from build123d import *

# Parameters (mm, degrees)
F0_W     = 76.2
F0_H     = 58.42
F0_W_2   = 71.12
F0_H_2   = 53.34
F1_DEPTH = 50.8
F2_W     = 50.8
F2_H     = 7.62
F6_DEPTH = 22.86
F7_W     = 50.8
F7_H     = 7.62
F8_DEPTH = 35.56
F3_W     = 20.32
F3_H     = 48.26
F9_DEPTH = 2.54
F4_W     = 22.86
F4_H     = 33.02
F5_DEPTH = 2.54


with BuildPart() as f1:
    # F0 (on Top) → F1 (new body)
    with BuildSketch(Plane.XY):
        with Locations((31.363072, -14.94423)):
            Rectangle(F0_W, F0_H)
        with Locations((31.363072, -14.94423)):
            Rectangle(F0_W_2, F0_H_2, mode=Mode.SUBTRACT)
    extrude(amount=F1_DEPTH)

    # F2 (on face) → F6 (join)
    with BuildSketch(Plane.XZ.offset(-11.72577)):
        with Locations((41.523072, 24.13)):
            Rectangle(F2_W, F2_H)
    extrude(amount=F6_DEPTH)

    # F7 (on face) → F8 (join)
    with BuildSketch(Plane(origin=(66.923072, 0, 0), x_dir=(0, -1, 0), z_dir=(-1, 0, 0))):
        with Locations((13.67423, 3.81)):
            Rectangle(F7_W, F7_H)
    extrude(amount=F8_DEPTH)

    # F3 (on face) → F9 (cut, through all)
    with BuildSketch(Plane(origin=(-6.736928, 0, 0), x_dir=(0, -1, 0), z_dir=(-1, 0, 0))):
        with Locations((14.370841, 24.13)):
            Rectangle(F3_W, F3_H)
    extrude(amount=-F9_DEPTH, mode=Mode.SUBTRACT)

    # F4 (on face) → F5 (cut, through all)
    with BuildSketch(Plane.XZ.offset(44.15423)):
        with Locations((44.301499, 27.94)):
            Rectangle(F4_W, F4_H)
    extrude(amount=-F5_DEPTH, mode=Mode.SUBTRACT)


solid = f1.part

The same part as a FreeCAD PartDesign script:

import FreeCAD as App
import Part
import Sketcher
from FreeCAD import Vector
Q = App.Units.Quantity


def add_polygon(sketch, points):
    """Adds a closed chain of lines whose ends are joined by coincident constraints."""
    first, n = sketch.GeometryCount, len(points)
    for a, b in zip(points, points[1:] + points[:1]):
        sketch.addGeometry(Part.LineSegment(App.Vector(*a, 0), App.Vector(*b, 0)), False)
    for i in range(n):
        sketch.addConstraint(Sketcher.Constraint("Coincident", first + i, 2, first + (i + 1) % n, 1))

doc = App.newDocument("Part")
body = doc.addObject("PartDesign::Body", "Body")

# Sketch on XY plane
sketch1 = body.newObject("Sketcher::SketchObject", "Sketch")
sketch1.AttachmentSupport = (doc.getObject("XY_Plane"), [""])
sketch1.MapMode = "FlatFace"
add_polygon(sketch1, [(-7, 14), (-7, -44), (69, -44), (69, 14)])  # lines 0-3
add_polygon(sketch1, [(67, -42), (-4, -42), (-4, 12), (67, 12)])  # lines 4-7
sketch1.addConstraint(Sketcher.Constraint("Vertical", 0))
sketch1.addConstraint(Sketcher.Constraint("Horizontal", 1))
sketch1.addConstraint(Sketcher.Constraint("Vertical", 2))
sketch1.addConstraint(Sketcher.Constraint("Horizontal", 3))
sketch1.addConstraint(Sketcher.Constraint("Horizontal", 4))
sketch1.addConstraint(Sketcher.Constraint("Vertical", 5))
sketch1.addConstraint(Sketcher.Constraint("Horizontal", 6))
sketch1.addConstraint(Sketcher.Constraint("Vertical", 7))
sketch1.addConstraint(Sketcher.Constraint("DistanceX", 1, 1, 1, 2, Q("3 in")))
sketch1.addConstraint(Sketcher.Constraint("DistanceX", 4, 2, 4, 1, Q("2.8 in")))
sketch1.addConstraint(Sketcher.Constraint("DistanceY", 0, 2, 0, 1, Q("2.3 in")))
sketch1.addConstraint(Sketcher.Constraint("DistanceY", 5, 1, 5, 2, Q("2.1 in")))
sketch1.addConstraint(Sketcher.Constraint("DistanceX", 0, 2, 4, 2, Q("0.1 in")))
sketch1.addConstraint(Sketcher.Constraint("DistanceY", 0, 2, 4, 2, Q("0.1 in")))
sketch1.addConstraint(Sketcher.Constraint("DistanceY", 0, 2, -1, 1, 44.15423))
sketch1.addConstraint(Sketcher.Constraint("DistanceX", -1, 1, 1, 2, 69.463072))
pad1 = body.newObject("PartDesign::Pad", "Pad")
pad1.Profile = sketch1
pad1.Length = Q("2 in")

# Sketch on XZ plane
sketch2 = body.newObject("Sketcher::SketchObject", "Sketch001")
sketch2.AttachmentSupport = (doc.getObject("XZ_Plane"), [""])
sketch2.MapMode = "FlatFace"
sketch2.AttachmentOffset = App.Placement(Vector(0, 0, -11.72577), App.Rotation())
add_polygon(sketch2, [(16, 28), (16, 20), (67, 20), (67, 28)])  # lines 0-3
sketch2.addConstraint(Sketcher.Constraint("Vertical", 0))
sketch2.addConstraint(Sketcher.Constraint("Horizontal", 1))
sketch2.addConstraint(Sketcher.Constraint("Vertical", 2))
sketch2.addConstraint(Sketcher.Constraint("Horizontal", 3))
sketch2.addConstraint(Sketcher.Constraint("DistanceX", 1, 1, 1, 2, Q("2 in")))
sketch2.addConstraint(Sketcher.Constraint("DistanceY", 0, 2, 0, 1, Q("0.3 in")))
sketch2.addConstraint(Sketcher.Constraint("DistanceY", -1, 1, 0, 2, Q("0.8 in")))
sketch2.addConstraint(Sketcher.Constraint("DistanceX", -1, 1, 0, 2, 16.123072))
pad2 = body.newObject("PartDesign::Pad", "Pad001")
pad2.Profile = sketch2
pad2.Length = Q("0.9 in")

# Sketch on YZ plane
sketch3 = body.newObject("Sketcher::SketchObject", "Sketch002")
sketch3.AttachmentSupport = (doc.getObject("YZ_Plane"), [""])
sketch3.MapMode = "FlatFace"
sketch3.AttachmentOffset = App.Placement(Vector(0, 0, 66.923072), App.Rotation())
add_polygon(sketch3, [(12, 8), (12, 0), (-39, 0), (-39, 8)])  # lines 0-3
sketch3.addConstraint(Sketcher.Constraint("Vertical", 0))
sketch3.addConstraint(Sketcher.Constraint("Horizontal", 1))
sketch3.addConstraint(Sketcher.Constraint("Vertical", 2))
sketch3.addConstraint(Sketcher.Constraint("Horizontal", 3))
sketch3.addConstraint(Sketcher.Constraint("PointOnObject", 0, 2, -1))
sketch3.addConstraint(Sketcher.Constraint("DistanceX", 1, 2, 1, 1, Q("2 in")))
sketch3.addConstraint(Sketcher.Constraint("DistanceY", 0, 2, 0, 1, Q("0.3 in")))
sketch3.addConstraint(Sketcher.Constraint("DistanceX", -1, 1, 0, 2, 11.72577))
pad3 = body.newObject("PartDesign::Pad", "Pad002")
pad3.Profile = sketch3
pad3.Length = Q("1.4 in")
pad3.Reversed = True

# Sketch on YZ plane
sketch4 = body.newObject("Sketcher::SketchObject", "Sketch003")
sketch4.AttachmentSupport = (doc.getObject("YZ_Plane"), [""])
sketch4.MapMode = "FlatFace"
sketch4.AttachmentOffset = App.Placement(Vector(0, 0, -6.736928), App.Rotation())
add_polygon(sketch4, [(-4, 48), (-4, 0), (-25, 0), (-25, 48)])  # lines 0-3
sketch4.addConstraint(Sketcher.Constraint("Vertical", 0))
sketch4.addConstraint(Sketcher.Constraint("Horizontal", 1))
sketch4.addConstraint(Sketcher.Constraint("Vertical", 2))
sketch4.addConstraint(Sketcher.Constraint("Horizontal", 3))
sketch4.addConstraint(Sketcher.Constraint("PointOnObject", 0, 2, -1))
sketch4.addConstraint(Sketcher.Constraint("DistanceX", 1, 2, 1, 1, Q("0.8 in")))
sketch4.addConstraint(Sketcher.Constraint("DistanceY", 0, 2, 0, 1, Q("1.9 in")))
sketch4.addConstraint(Sketcher.Constraint("DistanceX", 0, 2, -1, 1, 4.210841))
pocket1 = body.newObject("PartDesign::Pocket", "Pocket")
pocket1.Profile = sketch4
pocket1.Length = Q("0.1 in")
pocket1.Reversed = True

# Sketch on XZ plane
sketch5 = body.newObject("Sketcher::SketchObject", "Sketch004")
sketch5.AttachmentSupport = (doc.getObject("XZ_Plane"), [""])
sketch5.MapMode = "FlatFace"
sketch5.AttachmentOffset = App.Placement(Vector(0, 0, 44.15423), App.Rotation())
add_polygon(sketch5, [(33, 44), (33, 11), (56, 11), (56, 44)])  # lines 0-3
sketch5.addConstraint(Sketcher.Constraint("Vertical", 0))
sketch5.addConstraint(Sketcher.Constraint("Horizontal", 1))
sketch5.addConstraint(Sketcher.Constraint("Vertical", 2))
sketch5.addConstraint(Sketcher.Constraint("Horizontal", 3))
sketch5.addConstraint(Sketcher.Constraint("DistanceX", 1, 1, 1, 2, Q("0.9 in")))
sketch5.addConstraint(Sketcher.Constraint("DistanceY", 0, 2, 0, 1, Q("1.3 in")))
sketch5.addConstraint(Sketcher.Constraint("DistanceY", -1, 1, 0, 2, Q("0.45 in")))
sketch5.addConstraint(Sketcher.Constraint("DistanceX", -1, 1, 0, 2, 32.871499))
pocket2 = body.newObject("PartDesign::Pocket", "Pocket001")
pocket2.Profile = sketch5
pocket2.Length = Q("0.1 in")

doc.recompute()
